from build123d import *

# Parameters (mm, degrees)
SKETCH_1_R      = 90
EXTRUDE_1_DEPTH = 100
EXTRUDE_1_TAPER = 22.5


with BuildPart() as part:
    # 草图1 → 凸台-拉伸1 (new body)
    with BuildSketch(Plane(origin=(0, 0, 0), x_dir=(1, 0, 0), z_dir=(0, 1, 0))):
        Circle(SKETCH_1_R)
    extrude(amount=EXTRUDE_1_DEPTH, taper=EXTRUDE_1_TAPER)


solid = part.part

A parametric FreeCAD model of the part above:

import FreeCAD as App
import Part
import Sketcher
Q = App.Units.Quantity

doc = App.newDocument("Part")
params = doc.addObject("Spreadsheet::Sheet", "Params")
for row, (alias, value) in enumerate([
    ("sketch1_diameter", "180 mm"),
    ("pad1_length", "100 mm"),
    ("pad1_taper", "-22.5 deg"),
], start=1):
    params.set(f"A{row}", alias)
    params.set(f"B{row}", "=" + value)
    params.setAlias(f"B{row}", alias)

body = doc.addObject("PartDesign::Body", "Body")

# Sketch on XZ plane
sketch1 = body.newObject("Sketcher::SketchObject", "Sketch")
sketch1.AttachmentSupport = (doc.getObject("XZ_Plane"), [""])
sketch1.MapMode = "FlatFace"
sketch1.addGeometry(Part.Circle(App.Vector(0, 0, 0), App.Vector(0, 0, 1), 90), False)
sketch1.addConstraint([
    Sketcher.Constraint("Coincident", 0, 3, -1, 1),
    Sketcher.Constraint("Diameter", 0, Q("180 mm")),
])
sketch1.setExpression("Constraints[1]", "Params.sketch1_diameter")
pad1 = body.newObject("PartDesign::Pad", "Pad")
pad1.Profile = sketch1
pad1.setExpression("Length", "Params.pad1_length")
pad1.Reversed = True
pad1.setExpression("TaperAngle", "Params.pad1_taper")

doc.recompute()
